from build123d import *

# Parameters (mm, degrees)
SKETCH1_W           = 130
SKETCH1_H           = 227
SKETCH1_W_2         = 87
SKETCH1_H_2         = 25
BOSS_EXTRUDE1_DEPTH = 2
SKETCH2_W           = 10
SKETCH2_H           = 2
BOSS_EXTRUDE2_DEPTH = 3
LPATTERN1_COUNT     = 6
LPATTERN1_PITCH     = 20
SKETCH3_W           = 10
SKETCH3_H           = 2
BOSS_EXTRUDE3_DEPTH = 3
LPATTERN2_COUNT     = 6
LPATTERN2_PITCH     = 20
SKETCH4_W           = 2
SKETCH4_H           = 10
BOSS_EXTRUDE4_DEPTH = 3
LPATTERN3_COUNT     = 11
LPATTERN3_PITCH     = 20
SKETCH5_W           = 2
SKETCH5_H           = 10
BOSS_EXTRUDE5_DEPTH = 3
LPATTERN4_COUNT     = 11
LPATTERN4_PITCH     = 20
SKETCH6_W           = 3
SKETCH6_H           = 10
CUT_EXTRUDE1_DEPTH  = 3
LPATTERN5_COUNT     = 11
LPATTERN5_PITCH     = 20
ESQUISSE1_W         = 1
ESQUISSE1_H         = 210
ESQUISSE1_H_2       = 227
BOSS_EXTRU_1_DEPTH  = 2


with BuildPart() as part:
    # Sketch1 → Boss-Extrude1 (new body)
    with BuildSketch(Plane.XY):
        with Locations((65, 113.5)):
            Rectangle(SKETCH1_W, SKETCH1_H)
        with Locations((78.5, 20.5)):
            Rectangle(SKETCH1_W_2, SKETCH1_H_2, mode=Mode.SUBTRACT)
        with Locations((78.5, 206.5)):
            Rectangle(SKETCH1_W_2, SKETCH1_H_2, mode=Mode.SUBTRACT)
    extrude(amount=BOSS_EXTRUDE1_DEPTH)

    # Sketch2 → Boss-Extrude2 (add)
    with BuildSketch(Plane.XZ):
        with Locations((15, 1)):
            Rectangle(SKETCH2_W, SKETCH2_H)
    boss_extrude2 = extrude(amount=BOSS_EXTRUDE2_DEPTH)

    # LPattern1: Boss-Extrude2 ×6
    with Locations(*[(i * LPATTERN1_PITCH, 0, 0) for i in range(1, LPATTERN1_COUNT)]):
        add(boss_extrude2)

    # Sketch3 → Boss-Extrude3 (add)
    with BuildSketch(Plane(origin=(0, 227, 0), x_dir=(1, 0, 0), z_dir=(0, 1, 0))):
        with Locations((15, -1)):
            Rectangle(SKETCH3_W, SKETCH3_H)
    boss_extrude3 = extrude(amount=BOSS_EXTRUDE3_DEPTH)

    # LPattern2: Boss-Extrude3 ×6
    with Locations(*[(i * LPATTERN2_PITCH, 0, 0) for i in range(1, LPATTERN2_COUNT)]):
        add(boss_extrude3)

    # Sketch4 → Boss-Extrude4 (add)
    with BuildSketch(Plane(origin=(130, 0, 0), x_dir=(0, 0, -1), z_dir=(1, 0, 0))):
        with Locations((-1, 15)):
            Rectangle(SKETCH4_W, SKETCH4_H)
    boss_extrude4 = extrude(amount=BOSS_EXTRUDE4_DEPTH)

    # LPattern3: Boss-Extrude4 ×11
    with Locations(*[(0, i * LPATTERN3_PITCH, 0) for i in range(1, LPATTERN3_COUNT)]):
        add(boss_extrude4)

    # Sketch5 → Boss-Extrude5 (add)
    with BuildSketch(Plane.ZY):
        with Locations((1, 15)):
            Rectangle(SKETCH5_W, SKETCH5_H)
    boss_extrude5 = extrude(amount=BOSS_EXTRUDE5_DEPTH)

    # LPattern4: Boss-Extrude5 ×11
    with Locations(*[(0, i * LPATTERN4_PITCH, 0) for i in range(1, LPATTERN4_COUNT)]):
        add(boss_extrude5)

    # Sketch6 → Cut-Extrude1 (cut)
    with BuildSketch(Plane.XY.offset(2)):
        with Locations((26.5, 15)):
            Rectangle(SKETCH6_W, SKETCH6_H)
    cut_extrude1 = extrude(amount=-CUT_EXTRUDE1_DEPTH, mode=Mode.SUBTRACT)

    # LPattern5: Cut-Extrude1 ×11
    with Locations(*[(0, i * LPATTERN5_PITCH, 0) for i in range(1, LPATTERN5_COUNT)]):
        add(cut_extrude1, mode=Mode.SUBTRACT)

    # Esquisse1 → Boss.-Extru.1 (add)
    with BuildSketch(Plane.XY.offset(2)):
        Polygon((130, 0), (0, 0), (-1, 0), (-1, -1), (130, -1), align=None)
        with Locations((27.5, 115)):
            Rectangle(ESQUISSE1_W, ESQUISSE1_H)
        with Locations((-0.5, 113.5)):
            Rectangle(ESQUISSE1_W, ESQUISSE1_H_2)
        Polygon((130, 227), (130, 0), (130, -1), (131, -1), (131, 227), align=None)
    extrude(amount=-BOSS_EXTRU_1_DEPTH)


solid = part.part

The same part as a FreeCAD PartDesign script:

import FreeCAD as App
import Part
import Sketcher
from FreeCAD import Vector


def add_polygon(sketch, points):
    """Adds a closed chain of lines whose ends are joined by coincident constraints."""
    first, n = sketch.GeometryCount, len(points)
    for a, b in zip(points, points[1:] + points[:1]):
        sketch.addGeometry(Part.LineSegment(App.Vector(*a, 0), App.Vector(*b, 0)), False)
    for i in range(n):
        sketch.addConstraint(Sketcher.Constraint("Coincident", first + i, 2, first + (i + 1) % n, 1))

doc = App.newDocument("Part")
body = doc.addObject("PartDesign::Body", "Body")

sketch1 = body.newObject("Sketcher::SketchObject", "Sketch")
sketch1.AttachmentSupport = (doc.getObject("XY_Plane"), [""])
sketch1.MapMode = "FlatFace"
add_polygon(sketch1, [(0, 227), (0, 0), (130, 0), (130, 227)])
add_polygon(sketch1, [(122, 8), (35, 8), (35, 33), (122, 33)])
add_polygon(sketch1, [(122, 194), (35, 194), (35, 219), (122, 219)])
sketch1.addConstraint([
    Sketcher.Constraint("Vertical", 0),
    Sketcher.Constraint("Horizontal", 1),
    Sketcher.Constraint("Vertical", 2),
    Sketcher.Constraint("Horizontal", 3),
    Sketcher.Constraint("Horizontal", 4),
    Sketcher.Constraint("Vertical", 5),
    Sketcher.Constraint("Horizontal", 6),
    Sketcher.Constraint("Vertical", 7),
    Sketcher.Constraint("Horizontal", 8),
    Sketcher.Constraint("Vertical", 9),
    Sketcher.Constraint("Horizontal", 10),
    Sketcher.Constraint("Vertical", 11),
    Sketcher.Constraint("Coincident", 0, 2, -1, 1),
    Sketcher.Constraint("Vertical", 5, 2, 8, 2),
    Sketcher.Constraint("Vertical", 7, 2, 10, 2),
    Sketcher.Constraint("Equal", 7, 9),
    Sketcher.Constraint("DistanceX", 1, 1, 1, 2, 130.0),
    Sketcher.Constraint("DistanceX", 4, 2, 4, 1, 87.0),
    Sketcher.Constraint("DistanceY", 0, 2, 0, 1, 227.0),
    Sketcher.Constraint("DistanceY", 5, 1, 5, 2, 25.0),
    Sketcher.Constraint("DistanceX", -1, 1, 4, 2, 35.0),
    Sketcher.Constraint("DistanceY", -1, 1, 4, 2, 8.0),
    Sketcher.Constraint("DistanceY", -1, 1, 8, 2, 194.0),
])
pad1 = body.newObject("PartDesign::Pad", "Pad")
pad1.Profile = sketch1
pad1.Length = 2

sketch2 = body.newObject("Sketcher::SketchObject", "Sketch001")
sketch2.AttachmentSupport = (doc.getObject("XZ_Plane"), [""])
sketch2.MapMode = "FlatFace"
add_polygon(sketch2, [(10, 2), (10, 0), (20, 0), (20, 2)])
sketch2.addConstraint([
    Sketcher.Constraint("Vertical", 0),
    Sketcher.Constraint("Horizontal", 1),
    Sketcher.Constraint("Vertical", 2),
    Sketcher.Constraint("Horizontal", 3),
    Sketcher.Constraint("PointOnObject", 0, 2, -1),
    Sketcher.Constraint("DistanceX", 1, 1, 1, 2, 10.0),
    Sketcher.Constraint("DistanceY", 0, 2, 0, 1, 2.0),
    Sketcher.Constraint("DistanceX", -1, 1, 0, 2, 10.0),
])
pad2 = body.newObject("PartDesign::Pad", "Pad001")
pad2.Profile = sketch2
pad2.Length = 3
doc.recompute()

linearpattern = body.newObject("PartDesign::LinearPattern", "LinearPattern")
linearpattern.Originals = [pad2]
linearpattern.Direction = (doc.getObject("X_Axis"), [""])
linearpattern.Mode = "offset"
linearpattern.Offset = 20
linearpattern.Occurrences = 6
body.Tip = linearpattern

sketch3 = body.newObject("Sketcher::SketchObject", "Sketch002")
sketch3.AttachmentSupport = (doc.getObject("XZ_Plane"), [""])
sketch3.MapMode = "FlatFace"
sketch3.AttachmentOffset = App.Placement(Vector(0, 0, -227), App.Rotation())
add_polygon(sketch3, [(10, 0), (10, 2), (20, 2), (20, 0)])
sketch3.addConstraint([
    Sketcher.Constraint("Vertical", 0),
    Sketcher.Constraint("Horizontal", 1),
    Sketcher.Constraint("Vertical", 2),
    Sketcher.Constraint("Horizontal", 3),
    Sketcher.Constraint("PointOnObject", 2, 2, -1),
    Sketcher.Constraint("DistanceX", 1, 1, 1, 2, 10.0),
    Sketcher.Constraint("DistanceY", 0, 1, 0, 2, 2.0),
    Sketcher.Constraint("DistanceX", -1, 1, 0, 2, 10.0),
])
pad3 = body.newObject("PartDesign::Pad", "Pad002")
pad3.Profile = sketch3
pad3.Length = 3
pad3.Reversed = True
doc.recompute()

linearpattern2 = body.newObject("PartDesign::LinearPattern", "LinearPattern001")
linearpattern2.Originals = [pad3]
linearpattern2.Direction = (doc.getObject("X_Axis"), [""])
linearpattern2.Mode = "offset"
linearpattern2.Offset = 20
linearpattern2.Occurrences = 6
body.Tip = linearpattern2

sketch4 = body.newObject("Sketcher::SketchObject", "Sketch003")
sketch4.AttachmentSupport = (doc.getObject("YZ_Plane"), [""])
sketch4.MapMode = "FlatFace"
sketch4.AttachmentOffset = App.Placement(Vector(0, 0, 130), App.Rotation())
add_polygon(sketch4, [(20, 2), (10, 2), (10, 0), (20, 0)])
sketch4.addConstraint([
    Sketcher.Constraint("Horizontal", 0),
    Sketcher.Constraint("Vertical", 1),
    Sketcher.Constraint("Horizontal", 2),
    Sketcher.Constraint("Vertical", 3),
    Sketcher.Constraint("PointOnObject", 1, 2, -1),
    Sketcher.Constraint("DistanceX", 0, 2, 0, 1, 10.0),
    Sketcher.Constraint("DistanceY", 1, 2, 1, 1, 2.0),
    Sketcher.Constraint("DistanceX", -1, 1, 0, 2, 10.0),
])
pad4 = body.newObject("PartDesign::Pad", "Pad003")
pad4.Profile = sketch4
pad4.Length = 3
doc.recompute()

linearpattern3 = body.newObject("PartDesign::LinearPattern", "LinearPattern002")
linearpattern3.Originals = [pad4]
linearpattern3.Direction = (doc.getObject("Y_Axis"), [""])
linearpattern3.Mode = "offset"
linearpattern3.Offset = 20
linearpattern3.Occurrences = 11
body.Tip = linearpattern3

sketch5 = body.newObject("Sketcher::SketchObject", "Sketch004")
sketch5.AttachmentSupport = (doc.getObject("YZ_Plane"), [""])
sketch5.MapMode = "FlatFace"
add_polygon(sketch5, [(20, 0), (10, 0), (10, 2), (20, 2)])
sketch5.addConstraint([
    Sketcher.Constraint("Horizontal", 0),
    Sketcher.Constraint("Vertical", 1),
    Sketcher.Constraint("Horizontal", 2),
    Sketcher.Constraint("Vertical", 3),
    Sketcher.Constraint("PointOnObject", 0, 2, -1),
    Sketcher.Constraint("DistanceX", 0, 2, 0, 1, 10.0),
    Sketcher.Constraint("DistanceY", 1, 1, 1, 2, 2.0),
    Sketcher.Constraint("DistanceX", -1, 1, 0, 2, 10.0),
])
pad5 = body.newObject("PartDesign::Pad", "Pad004")
pad5.Profile = sketch5
pad5.Length = 3
pad5.Reversed = True
doc.recompute()

linearpattern4 = body.newObject("PartDesign::LinearPattern", "LinearPattern003")
linearpattern4.Originals = [pad5]
linearpattern4.Direction = (doc.getObject("Y_Axis"), [""])
linearpattern4.Mode = "offset"
linearpattern4.Offset = 20
linearpattern4.Occurrences = 11
body.Tip = linearpattern4

sketch6 = body.newObject("Sketcher::SketchObject", "Sketch005")
sketch6.AttachmentSupport = (doc.getObject("XY_Plane"), [""])
sketch6.MapMode = "FlatFace"
sketch6.AttachmentOffset = App.Placement(Vector(0, 0, 2), App.Rotation())
add_polygon(sketch6, [(25, 20), (25, 10), (28, 10), (28, 20)])
sketch6.addConstraint([
    Sketcher.Constraint("Vertical", 0),
    Sketcher.Constraint("Horizontal", 1),
    Sketcher.Constraint("Vertical", 2),
    Sketcher.Constraint("Horizontal", 3),
    Sketcher.Constraint("DistanceX", 1, 1, 1, 2, 3.0),
    Sketcher.Constraint("DistanceY", 0, 2, 0, 1, 10.0),
    Sketcher.Constraint("DistanceX", -1, 1, 0, 2, 25.0),
    Sketcher.Constraint("DistanceY", -1, 1, 0, 2, 10.0),
])
pocket1 = body.newObject("PartDesign::Pocket", "Pocket")
pocket1.Profile = sketch6
pocket1.Length = 3
doc.recompute()

linearpattern5 = body.newObject("PartDesign::LinearPattern", "LinearPattern004")
linearpattern5.Originals = [pocket1]
linearpattern5.Direction = (doc.getObject("Y_Axis"), [""])
linearpattern5.Mode = "offset"
linearpattern5.Offset = 20
linearpattern5.Occurrences = 11
body.Tip = linearpattern5

sketch7 = body.newObject("Sketcher::SketchObject", "Sketch006")
sketch7.AttachmentSupport = (doc.getObject("XY_Plane"), [""])
sketch7.MapMode = "FlatFace"
sketch7.AttachmentOffset = App.Placement(Vector(0, 0, 2), App.Rotation())
add_polygon(sketch7, [(130, 0), (0, 0), (0, 227), (-1, 227), (-1, -1), (131, -1), (131, 227), (130, 227)])
add_polygon(sketch7, [(27, 220), (27, 10), (28, 10), (28, 220)])
sketch7.addConstraint([
    Sketcher.Constraint("Horizontal", 0),
    Sketcher.Constraint("Vertical", 1),
    Sketcher.Constraint("Horizontal", 2),
    Sketcher.Constraint("Vertical", 3),
    Sketcher.Constraint("Horizontal", 4),
    Sketcher.Constraint("Vertical", 5),
    Sketcher.Constraint("Horizontal", 6),
    Sketcher.Constraint("Vertical", 7),
    Sketcher.Constraint("Vertical", 8),
    Sketcher.Constraint("Horizontal", 9),
    Sketcher.Constraint("Vertical", 10),
    Sketcher.Constraint("Horizontal", 11),
    Sketcher.Constraint("Coincident", 0, 2, -1, 1),
    Sketcher.Constraint("Horizontal", 2, 2, 5, 2),
    Sketcher.Constraint("Equal", 2, 6),
    Sketcher.Constraint("Equal", 6, 9),
    Sketcher.Constraint("DistanceX", 0, 2, 0, 1, 130.0),
    Sketcher.Constraint("DistanceX", 2, 2, 2, 1, 1.0),
    Sketcher.Constraint("DistanceY", 1, 1, 1, 2, 227.0),
    Sketcher.Constraint("DistanceY", 3, 2, 3, 1, 228.0),
    Sketcher.Constraint("DistanceY", 8, 2, 8, 1, 210.0),
    Sketcher.Constraint("DistanceX", -1, 1, 8, 2, 27.0),
    Sketcher.Constraint("DistanceY", -1, 1, 8, 2, 10.0),
])
pad6 = body.newObject("PartDesign::Pad", "Pad005")
pad6.Profile = sketch7
pad6.Length = 2
pad6.Reversed = True

doc.recompute()
